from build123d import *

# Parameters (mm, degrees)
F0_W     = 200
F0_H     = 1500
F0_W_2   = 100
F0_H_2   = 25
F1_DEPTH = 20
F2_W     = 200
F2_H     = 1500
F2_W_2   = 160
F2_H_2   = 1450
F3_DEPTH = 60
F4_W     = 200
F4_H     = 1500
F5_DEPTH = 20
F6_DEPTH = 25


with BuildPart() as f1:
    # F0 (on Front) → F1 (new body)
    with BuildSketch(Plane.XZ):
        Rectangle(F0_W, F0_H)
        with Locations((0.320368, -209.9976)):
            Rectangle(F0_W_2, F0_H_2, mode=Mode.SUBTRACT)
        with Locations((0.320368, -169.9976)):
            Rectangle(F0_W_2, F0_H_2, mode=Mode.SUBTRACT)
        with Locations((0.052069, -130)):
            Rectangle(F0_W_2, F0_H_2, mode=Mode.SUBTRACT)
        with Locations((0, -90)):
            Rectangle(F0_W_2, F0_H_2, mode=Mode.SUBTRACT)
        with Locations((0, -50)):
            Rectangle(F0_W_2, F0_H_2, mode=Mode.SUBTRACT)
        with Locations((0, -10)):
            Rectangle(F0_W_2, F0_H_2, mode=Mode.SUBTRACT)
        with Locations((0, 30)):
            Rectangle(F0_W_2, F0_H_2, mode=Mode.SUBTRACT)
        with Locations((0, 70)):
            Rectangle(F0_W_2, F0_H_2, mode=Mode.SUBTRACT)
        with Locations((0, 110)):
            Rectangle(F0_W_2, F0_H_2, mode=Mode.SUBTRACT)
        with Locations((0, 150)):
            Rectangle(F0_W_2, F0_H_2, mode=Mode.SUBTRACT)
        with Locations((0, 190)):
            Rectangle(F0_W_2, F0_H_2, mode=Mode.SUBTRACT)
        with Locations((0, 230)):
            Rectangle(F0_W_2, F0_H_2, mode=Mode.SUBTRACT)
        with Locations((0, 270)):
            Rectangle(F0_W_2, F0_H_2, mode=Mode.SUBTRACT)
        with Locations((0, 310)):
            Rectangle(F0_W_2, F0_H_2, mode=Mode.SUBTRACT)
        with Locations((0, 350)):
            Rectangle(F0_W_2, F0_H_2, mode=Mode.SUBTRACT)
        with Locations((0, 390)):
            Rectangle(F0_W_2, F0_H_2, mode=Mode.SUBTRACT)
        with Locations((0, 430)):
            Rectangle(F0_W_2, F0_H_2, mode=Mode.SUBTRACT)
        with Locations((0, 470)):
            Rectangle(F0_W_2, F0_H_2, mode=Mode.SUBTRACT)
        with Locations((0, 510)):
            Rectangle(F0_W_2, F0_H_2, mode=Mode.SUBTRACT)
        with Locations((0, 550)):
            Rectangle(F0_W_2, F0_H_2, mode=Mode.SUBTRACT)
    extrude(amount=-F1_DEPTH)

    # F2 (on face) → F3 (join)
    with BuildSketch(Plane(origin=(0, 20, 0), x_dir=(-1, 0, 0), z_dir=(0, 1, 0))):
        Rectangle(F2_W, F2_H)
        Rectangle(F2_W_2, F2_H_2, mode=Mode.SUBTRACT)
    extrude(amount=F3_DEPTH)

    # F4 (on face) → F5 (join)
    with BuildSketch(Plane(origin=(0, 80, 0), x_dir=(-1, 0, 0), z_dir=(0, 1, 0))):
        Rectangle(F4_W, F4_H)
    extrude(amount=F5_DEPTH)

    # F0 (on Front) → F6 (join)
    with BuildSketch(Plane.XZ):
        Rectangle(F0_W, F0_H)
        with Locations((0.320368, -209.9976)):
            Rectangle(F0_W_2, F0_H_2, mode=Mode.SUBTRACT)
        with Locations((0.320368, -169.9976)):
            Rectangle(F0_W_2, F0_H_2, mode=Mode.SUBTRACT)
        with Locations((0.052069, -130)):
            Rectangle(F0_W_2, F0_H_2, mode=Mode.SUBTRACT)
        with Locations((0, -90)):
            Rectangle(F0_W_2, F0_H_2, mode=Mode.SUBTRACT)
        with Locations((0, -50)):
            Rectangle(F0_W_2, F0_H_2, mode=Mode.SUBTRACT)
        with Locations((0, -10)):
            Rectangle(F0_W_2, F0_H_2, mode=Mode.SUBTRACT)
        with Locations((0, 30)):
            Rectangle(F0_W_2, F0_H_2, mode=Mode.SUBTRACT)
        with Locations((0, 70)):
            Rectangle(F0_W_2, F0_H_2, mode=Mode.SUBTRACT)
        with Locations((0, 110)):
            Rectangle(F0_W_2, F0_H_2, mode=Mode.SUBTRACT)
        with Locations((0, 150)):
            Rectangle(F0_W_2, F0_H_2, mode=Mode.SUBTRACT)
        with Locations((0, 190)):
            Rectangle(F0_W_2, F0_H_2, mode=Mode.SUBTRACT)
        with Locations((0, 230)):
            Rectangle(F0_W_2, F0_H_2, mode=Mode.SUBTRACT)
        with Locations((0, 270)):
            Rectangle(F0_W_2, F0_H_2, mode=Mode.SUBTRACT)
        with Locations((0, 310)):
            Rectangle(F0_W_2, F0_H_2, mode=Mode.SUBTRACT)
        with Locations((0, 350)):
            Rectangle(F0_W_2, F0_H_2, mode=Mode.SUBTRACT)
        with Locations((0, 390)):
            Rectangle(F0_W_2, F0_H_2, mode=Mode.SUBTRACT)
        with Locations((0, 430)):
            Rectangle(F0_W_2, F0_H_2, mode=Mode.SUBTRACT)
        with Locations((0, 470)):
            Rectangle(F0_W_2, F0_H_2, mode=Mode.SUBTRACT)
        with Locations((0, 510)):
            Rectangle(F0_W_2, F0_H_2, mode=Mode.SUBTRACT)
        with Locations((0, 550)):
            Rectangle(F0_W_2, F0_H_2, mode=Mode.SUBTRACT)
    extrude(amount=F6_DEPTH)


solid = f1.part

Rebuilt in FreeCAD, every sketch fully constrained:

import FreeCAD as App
import Part
import Sketcher
from FreeCAD import Vector


def add_polygon(sketch, points):
    """Adds a closed chain of lines whose ends are joined by coincident constraints."""
    first, n = sketch.GeometryCount, len(points)
    for a, b in zip(points, points[1:] + points[:1]):
        sketch.addGeometry(Part.LineSegment(App.Vector(*a, 0), App.Vector(*b, 0)), False)
    for i in range(n):
        sketch.addConstraint(Sketcher.Constraint("Coincident", first + i, 2, first + (i + 1) % n, 1))

doc = App.newDocument("Part")
body = doc.addObject("PartDesign::Body", "Body")

# Sketch on XZ plane
sketch1 = doc.addObject("Sketcher::SketchObject", "Sketch")
body.addObject(sketch1)
sketch1.AttachmentSupport = (doc.XZ_Plane, [""])
sketch1.MapMode = "FlatFace"
add_polygon(sketch1, [(-100, 750), (-100, -750), (100, -750), (100, 750)])  # lines 0-3
add_polygon(sketch1, [(50, -142), (-50, -142), (-50, -118), (50, -118)])  # lines 4-7
add_polygon(sketch1, [(50, -102), (-50, -102), (-50, -78), (50, -78)])  # lines 8-11
add_polygon(sketch1, [(50, -62), (-50, -62), (-50, -38), (50, -38)])  # lines 12-15
add_polygon(sketch1, [(50, -22), (-50, -22), (-50, 2), (50, 2)])  # lines 16-19
add_polygon(sketch1, [(50, 18), (-50, 18), (-50, 42), (50, 42)])  # lines 20-23
add_polygon(sketch1, [(50, 58), (-50, 58), (-50, 82), (50, 82)])  # lines 24-27
add_polygon(sketch1, [(50, 98), (-50, 98), (-50, 122), (50, 122)])  # lines 28-31
add_polygon(sketch1, [(50, 138), (-50, 138), (-50, 162), (50, 162)])  # lines 32-35
add_polygon(sketch1, [(50, -222), (-50, -222), (-50, -197), (50, -197)])  # lines 36-39
add_polygon(sketch1, [(50, -182), (-50, -182), (-50, -157), (50, -157)])  # lines 40-43
add_polygon(sketch1, [(50, 178), (-50, 178), (-50, 202), (50, 202)])  # lines 44-47
add_polygon(sketch1, [(50, 218), (-50, 218), (-50, 242), (50, 242)])  # lines 48-51
add_polygon(sketch1, [(50, 258), (-50, 258), (-50, 282), (50, 282)])  # lines 52-55
add_polygon(sketch1, [(50, 298), (-50, 298), (-50, 322), (50, 322)])  # lines 56-59
add_polygon(sketch1, [(50, 338), (-50, 338), (-50, 362), (50, 362)])  # lines 60-63
add_polygon(sketch1, [(50, 378), (-50, 378), (-50, 402), (50, 402)])  # lines 64-67
add_polygon(sketch1, [(50, 418), (-50, 418), (-50, 442), (50, 442)])  # lines 68-71
add_polygon(sketch1, [(50, 458), (-50, 458), (-50, 482), (50, 482)])  # lines 72-75
add_polygon(sketch1, [(50, 498), (-50, 498), (-50, 522), (50, 522)])  # lines 76-79
add_polygon(sketch1, [(50, 538), (-50, 538), (-50, 562), (50, 562)])  # lines 80-83
sketch1.addConstraint([
    Sketcher.Constraint("Vertical", 0),
    Sketcher.Constraint("Horizontal", 1),
    Sketcher.Constraint("Vertical", 2),
    Sketcher.Constraint("Horizontal", 3),
    Sketcher.Constraint("Horizontal", 4),
    Sketcher.Constraint("Vertical", 5),
    Sketcher.Constraint("Horizontal", 6),
    Sketcher.Constraint("Vertical", 7),
    Sketcher.Constraint("Horizontal", 8),
    Sketcher.Constraint("Vertical", 9),
    Sketcher.Constraint("Horizontal", 10),
    Sketcher.Constraint("Vertical", 11),
    Sketcher.Constraint("Horizontal", 12),
    Sketcher.Constraint("Vertical", 13),
    Sketcher.Constraint("Horizontal", 14),
    Sketcher.Constraint("Vertical", 15),
    Sketcher.Constraint("Horizontal", 16),
    Sketcher.Constraint("Vertical", 17),
    Sketcher.Constraint("Horizontal", 18),
    Sketcher.Constraint("Vertical", 19),
    Sketcher.Constraint("Horizontal", 20),
    Sketcher.Constraint("Vertical", 21),
    Sketcher.Constraint("Horizontal", 22),
    Sketcher.Constraint("Vertical", 23),
    Sketcher.Constraint("Horizontal", 24),
    Sketcher.Constraint("Vertical", 25),
    Sketcher.Constraint("Horizontal", 26),
    Sketcher.Constraint("Vertical", 27),
    Sketcher.Constraint("Horizontal", 28),
    Sketcher.Constraint("Vertical", 29),
    Sketcher.Constraint("Horizontal", 30),
    Sketcher.Constraint("Vertical", 31),
    Sketcher.Constraint("Horizontal", 32),
    Sketcher.Constraint("Vertical", 33),
    Sketcher.Constraint("Horizontal", 34),
    Sketcher.Constraint("Vertical", 35),
    Sketcher.Constraint("Horizontal", 36),
    Sketcher.Constraint("Vertical", 37),
    Sketcher.Constraint("Horizontal", 38),
    Sketcher.Constraint("Vertical", 39),
    Sketcher.Constraint("Horizontal", 40),
    Sketcher.Constraint("Vertical", 41),
    Sketcher.Constraint("Horizontal", 42),
    Sketcher.Constraint("Vertical", 43),
    Sketcher.Constraint("Horizontal", 44),
    Sketcher.Constraint("Vertical", 45),
    Sketcher.Constraint("Horizontal", 46),
    Sketcher.Constraint("Vertical", 47),
    Sketcher.Constraint("Horizontal", 48),
    Sketcher.Constraint("Vertical", 49),
    Sketcher.Constraint("Horizontal", 50),
    Sketcher.Constraint("Vertical", 51),
    Sketcher.Constraint("Horizontal", 52),
    Sketcher.Constraint("Vertical", 53),
    Sketcher.Constraint("Horizontal", 54),
    Sketcher.Constraint("Vertical", 55),
    Sketcher.Constraint("Horizontal", 56),
    Sketcher.Constraint("Vertical", 57),
    Sketcher.Constraint("Horizontal", 58),
    Sketcher.Constraint("Vertical", 59),
    Sketcher.Constraint("Horizontal", 60),
    Sketcher.Constraint("Vertical", 61),
    Sketcher.Constraint("Horizontal", 62),
    Sketcher.Constraint("Vertical", 63),
    Sketcher.Constraint("Horizontal", 64),
    Sketcher.Constraint("Vertical", 65),
    Sketcher.Constraint("Horizontal", 66),
    Sketcher.Constraint("Vertical", 67),
    Sketcher.Constraint("Horizontal", 68),
    Sketcher.Constraint("Vertical", 69),
    Sketcher.Constraint("Horizontal", 70),
    Sketcher.Constraint("Vertical", 71),
    Sketcher.Constraint("Horizontal", 72),
    Sketcher.Constraint("Vertical", 73),
    Sketcher.Constraint("Horizontal", 74),
    Sketcher.Constraint("Vertical", 75),
    Sketcher.Constraint("Horizontal", 76),
    Sketcher.Constraint("Vertical", 77),
    Sketcher.Constraint("Horizontal", 78),
    Sketcher.Constraint("Vertical", 79),
    Sketcher.Constraint("Horizontal", 80),
    Sketcher.Constraint("Vertical", 81),
    Sketcher.Constraint("Horizontal", 82),
    Sketcher.Constraint("Vertical", 83),
    Sketcher.Constraint("Symmetric", 0, 2, 2, 2, -1, 1),
    Sketcher.Constraint("Vertical", 9, 2, 12, 2),
    Sketcher.Constraint("Vertical", 11, 2, 14, 2),
    Sketcher.Constraint("Vertical", 13, 2, 16, 2),
    Sketcher.Constraint("Vertical", 15, 2, 18, 2),
    Sketcher.Constraint("Vertical", 17, 2, 20, 2),
    Sketcher.Constraint("Vertical", 19, 2, 22, 2),
    Sketcher.Constraint("Vertical", 21, 2, 24, 2),
    Sketcher.Constraint("Vertical", 23, 2, 26, 2),
    Sketcher.Constraint("Vertical", 25, 2, 28, 2),
    Sketcher.Constraint("Vertical", 27, 2, 30, 2),
    Sketcher.Constraint("Vertical", 29, 2, 32, 2),
    Sketcher.Constraint("Vertical", 31, 2, 34, 2),
    Sketcher.Constraint("Vertical", 37, 2, 40, 2),
    Sketcher.Constraint("Vertical", 39, 2, 42, 2),
    Sketcher.Constraint("Vertical", 33, 2, 44, 2),
    Sketcher.Constraint("Vertical", 35, 2, 46, 2),
    Sketcher.Constraint("Vertical", 45, 2, 48, 2),
    Sketcher.Constraint("Vertical", 47, 2, 50, 2),
    Sketcher.Constraint("Vertical", 49, 2, 52, 2),
    Sketcher.Constraint("Vertical", 51, 2, 54, 2),
    Sketcher.Constraint("Vertical", 53, 2, 56, 2),
    Sketcher.Constraint("Vertical", 55, 2, 58, 2),
    Sketcher.Constraint("Vertical", 57, 2, 60, 2),
    Sketcher.Constraint("Vertical", 59, 2, 62, 2),
    Sketcher.Constraint("Vertical", 61, 2, 64, 2),
    Sketcher.Constraint("Vertical", 63, 2, 66, 2),
    Sketcher.Constraint("Vertical", 65, 2, 68, 2),
    Sketcher.Constraint("Vertical", 67, 2, 70, 2),
    Sketcher.Constraint("Vertical", 69, 2, 72, 2),
    Sketcher.Constraint("Vertical", 71, 2, 74, 2),
    Sketcher.Constraint("Vertical", 73, 2, 76, 2),
    Sketcher.Constraint("Vertical", 75, 2, 78, 2),
    Sketcher.Constraint("Vertical", 77, 2, 80, 2),
    Sketcher.Constraint("Vertical", 79, 2, 82, 2),
    Sketcher.Constraint("Equal", 6, 8),
    Sketcher.Constraint("Equal", 34, 36),
    Sketcher.Constraint("Equal", 7, 9),
    Sketcher.Constraint("Equal", 11, 13),
    Sketcher.Constraint("Equal", 15, 17),
    Sketcher.Constraint("Equal", 19, 21),
    Sketcher.Constraint("Equal", 23, 25),
    Sketcher.Constraint("Equal", 27, 29),
    Sketcher.Constraint("Equal", 31, 33),
    Sketcher.Constraint("Equal", 35, 37),
    Sketcher.Constraint("Equal", 39, 41),
    Sketcher.Constraint("Equal", 43, 45),
    Sketcher.Constraint("Equal", 47, 49),
    Sketcher.Constraint("Equal", 51, 53),
    Sketcher.Constraint("Equal", 55, 57),
    Sketcher.Constraint("Equal", 59, 61),
    Sketcher.Constraint("Equal", 63, 65),
    Sketcher.Constraint("Equal", 67, 69),
    Sketcher.Constraint("Equal", 71, 73),
    Sketcher.Constraint("Equal", 75, 77),
    Sketcher.Constraint("Equal", 79, 81),
    Sketcher.Constraint("DistanceX", 1, 1, 1, 2, 200.0),
    Sketcher.Constraint("DistanceX", 4, 2, 4, 1, 100.0),
    Sketcher.Constraint("DistanceY", 0, 2, 0, 1, 1500.0),
    Sketcher.Constraint("DistanceY", 5, 1, 5, 2, 25.0),
    Sketcher.Constraint("DistanceX", 8, 2, -1, 1, 50.0),
    Sketcher.Constraint("DistanceY", 4, 2, -1, 1, 142.5),
    Sketcher.Constraint("DistanceY", 8, 2, -1, 1, 102.5),
    Sketcher.Constraint("DistanceY", 12, 2, -1, 1, 62.5),
    Sketcher.Constraint("DistanceY", 16, 2, -1, 1, 22.5),
    Sketcher.Constraint("DistanceY", -1, 1, 20, 2, 17.5),
    Sketcher.Constraint("DistanceY", -1, 1, 24, 2, 57.5),
    Sketcher.Constraint("DistanceY", -1, 1, 28, 2, 97.5),
    Sketcher.Constraint("DistanceY", -1, 1, 32, 2, 137.5),
    Sketcher.Constraint("DistanceY", -1, 1, 44, 2, 177.5),
    Sketcher.Constraint("DistanceY", -1, 1, 48, 2, 217.5),
    Sketcher.Constraint("DistanceY", -1, 1, 52, 2, 257.5),
    Sketcher.Constraint("DistanceY", -1, 1, 56, 2, 297.5),
    Sketcher.Constraint("DistanceY", -1, 1, 60, 2, 337.5),
    Sketcher.Constraint("DistanceY", -1, 1, 64, 2, 377.5),
    Sketcher.Constraint("DistanceY", -1, 1, 68, 2, 417.5),
    Sketcher.Constraint("DistanceY", -1, 1, 72, 2, 457.5),
    Sketcher.Constraint("DistanceY", -1, 1, 76, 2, 497.5),
    Sketcher.Constraint("DistanceY", -1, 1, 80, 2, 537.5),
    Sketcher.Constraint("DistanceY", 36, 2, -1, 1, 222.4976),
    Sketcher.Constraint("DistanceY", 40, 2, -1, 1, 182.4976),
    Sketcher.Constraint("DistanceX", 4, 2, -1, 1, 49.947931),
    Sketcher.Constraint("DistanceX", 36, 2, -1, 1, 49.679632),
])
pad1 = doc.addObject("PartDesign::Pad", "Pad")
body.addObject(pad1)
pad1.Profile = sketch1
pad1.Length = 20
pad1.Reversed = True

# Sketch on XZ plane
sketch2 = doc.addObject("Sketcher::SketchObject", "Sketch001")
body.addObject(sketch2)
sketch2.AttachmentSupport = (doc.XZ_Plane, [""])
sketch2.MapMode = "FlatFace"
sketch2.AttachmentOffset = App.Placement(Vector(0, 0, -20), App.Rotation())
add_polygon(sketch2, [(100, 750), (100, -750), (-100, -750), (-100, 750)])  # lines 0-3
add_polygon(sketch2, [(-80, -725), (80, -725), (80, 725), (-80, 725)])  # lines 4-7
sketch2.addConstraint([
    Sketcher.Constraint("Vertical", 0),
    Sketcher.Constraint("Horizontal", 1),
    Sketcher.Constraint("Vertical", 2),
    Sketcher.Constraint("Horizontal", 3),
    Sketcher.Constraint("Horizontal", 4),
    Sketcher.Constraint("Vertical", 5),
    Sketcher.Constraint("Horizontal", 6),
    Sketcher.Constraint("Vertical", 7),
    Sketcher.Constraint("Symmetric", 0, 2, 2, 2, -1, 1),
    Sketcher.Constraint("Symmetric", 4, 2, 6, 2, -1, 1),
    Sketcher.Constraint("DistanceX", 1, 2, 1, 1, 200.0),
    Sketcher.Constraint("DistanceX", 4, 1, 4, 2, 160.0),
    Sketcher.Constraint("DistanceY", 0, 2, 0, 1, 1500.0),
    Sketcher.Constraint("DistanceY", 5, 1, 5, 2, 1450.0),
])
pad2 = doc.addObject("PartDesign::Pad", "Pad001")
body.addObject(pad2)
pad2.Profile = sketch2
pad2.Length = 60
pad2.Reversed = True

# Sketch on XZ plane
sketch3 = doc.addObject("Sketcher::SketchObject", "Sketch002")
body.addObject(sketch3)
sketch3.AttachmentSupport = (doc.XZ_Plane, [""])
sketch3.MapMode = "FlatFace"
sketch3.AttachmentOffset = App.Placement(Vector(0, 0, -80), App.Rotation())
add_polygon(sketch3, [(100, 750), (100, -750), (-100, -750), (-100, 750)])  # lines 0-3
sketch3.addConstraint([
    Sketcher.Constraint("Vertical", 0),
    Sketcher.Constraint("Horizontal", 1),
    Sketcher.Constraint("Vertical", 2),
    Sketcher.Constraint("Horizontal", 3),
    Sketcher.Constraint("Symmetric", 0, 2, 2, 2, -1, 1),
    Sketcher.Constraint("DistanceX", 1, 2, 1, 1, 200.0),
    Sketcher.Constraint("DistanceY", 0, 2, 0, 1, 1500.0),
])
pad3 = doc.addObject("PartDesign::Pad", "Pad002")
body.addObject(pad3)
pad3.Profile = sketch3
pad3.Length = 20
pad3.Reversed = True

# Sketch on XZ plane
sketch4 = doc.addObject("Sketcher::SketchObject", "Sketch003")
body.addObject(sketch4)
sketch4.AttachmentSupport = (doc.XZ_Plane, [""])
sketch4.MapMode = "FlatFace"
add_polygon(sketch4, [(-100, 750), (-100, -750), (100, -750), (100, 750)])  # lines 0-3
add_polygon(sketch4, [(50, -142), (-50, -142), (-50, -118), (50, -118)])  # lines 4-7
add_polygon(sketch4, [(50, -102), (-50, -102), (-50, -78), (50, -78)])  # lines 8-11
add_polygon(sketch4, [(50, -62), (-50, -62), (-50, -38), (50, -38)])  # lines 12-15
add_polygon(sketch4, [(50, -22), (-50, -22), (-50, 2), (50, 2)])  # lines 16-19
add_polygon(sketch4, [(50, 18), (-50, 18), (-50, 42), (50, 42)])  # lines 20-23
add_polygon(sketch4, [(50, 58), (-50, 58), (-50, 82), (50, 82)])  # lines 24-27
add_polygon(sketch4, [(50, 98), (-50, 98), (-50, 122), (50, 122)])  # lines 28-31
add_polygon(sketch4, [(50, 138), (-50, 138), (-50, 162), (50, 162)])  # lines 32-35
add_polygon(sketch4, [(50, -222), (-50, -222), (-50, -197), (50, -197)])  # lines 36-39
add_polygon(sketch4, [(50, -182), (-50, -182), (-50, -157), (50, -157)])  # lines 40-43
add_polygon(sketch4, [(50, 178), (-50, 178), (-50, 202), (50, 202)])  # lines 44-47
add_polygon(sketch4, [(50, 218), (-50, 218), (-50, 242), (50, 242)])  # lines 48-51
add_polygon(sketch4, [(50, 258), (-50, 258), (-50, 282), (50, 282)])  # lines 52-55
add_polygon(sketch4, [(50, 298), (-50, 298), (-50, 322), (50, 322)])  # lines 56-59
add_polygon(sketch4, [(50, 338), (-50, 338), (-50, 362), (50, 362)])  # lines 60-63
add_polygon(sketch4, [(50, 378), (-50, 378), (-50, 402), (50, 402)])  # lines 64-67
add_polygon(sketch4, [(50, 418), (-50, 418), (-50, 442), (50, 442)])  # lines 68-71
add_polygon(sketch4, [(50, 458), (-50, 458), (-50, 482), (50, 482)])  # lines 72-75
add_polygon(sketch4, [(50, 498), (-50, 498), (-50, 522), (50, 522)])  # lines 76-79
add_polygon(sketch4, [(50, 538), (-50, 538), (-50, 562), (50, 562)])  # lines 80-83
sketch4.addConstraint([
    Sketcher.Constraint("Vertical", 0),
    Sketcher.Constraint("Horizontal", 1),
    Sketcher.Constraint("Vertical", 2),
    Sketcher.Constraint("Horizontal", 3),
    Sketcher.Constraint("Horizontal", 4),
    Sketcher.Constraint("Vertical", 5),
    Sketcher.Constraint("Horizontal", 6),
    Sketcher.Constraint("Vertical", 7),
    Sketcher.Constraint("Horizontal", 8),
    Sketcher.Constraint("Vertical", 9),
    Sketcher.Constraint("Horizontal", 10),
    Sketcher.Constraint("Vertical", 11),
    Sketcher.Constraint("Horizontal", 12),
    Sketcher.Constraint("Vertical", 13),
    Sketcher.Constraint("Horizontal", 14),
    Sketcher.Constraint("Vertical", 15),
    Sketcher.Constraint("Horizontal", 16),
    Sketcher.Constraint("Vertical", 17),
    Sketcher.Constraint("Horizontal", 18),
    Sketcher.Constraint("Vertical", 19),
    Sketcher.Constraint("Horizontal", 20),
    Sketcher.Constraint("Vertical", 21),
    Sketcher.Constraint("Horizontal", 22),
    Sketcher.Constraint("Vertical", 23),
    Sketcher.Constraint("Horizontal", 24),
    Sketcher.Constraint("Vertical", 25),
    Sketcher.Constraint("Horizontal", 26),
    Sketcher.Constraint("Vertical", 27),
    Sketcher.Constraint("Horizontal", 28),
    Sketcher.Constraint("Vertical", 29),
    Sketcher.Constraint("Horizontal", 30),
    Sketcher.Constraint("Vertical", 31),
    Sketcher.Constraint("Horizontal", 32),
    Sketcher.Constraint("Vertical", 33),
    Sketcher.Constraint("Horizontal", 34),
    Sketcher.Constraint("Vertical", 35),
    Sketcher.Constraint("Horizontal", 36),
    Sketcher.Constraint("Vertical", 37),
    Sketcher.Constraint("Horizontal", 38),
    Sketcher.Constraint("Vertical", 39),
    Sketcher.Constraint("Horizontal", 40),
    Sketcher.Constraint("Vertical", 41),
    Sketcher.Constraint("Horizontal", 42),
    Sketcher.Constraint("Vertical", 43),
    Sketcher.Constraint("Horizontal", 44),
    Sketcher.Constraint("Vertical", 45),
    Sketcher.Constraint("Horizontal", 46),
    Sketcher.Constraint("Vertical", 47),
    Sketcher.Constraint("Horizontal", 48),
    Sketcher.Constraint("Vertical", 49),
    Sketcher.Constraint("Horizontal", 50),
    Sketcher.Constraint("Vertical", 51),
    Sketcher.Constraint("Horizontal", 52),
    Sketcher.Constraint("Vertical", 53),
    Sketcher.Constraint("Horizontal", 54),
    Sketcher.Constraint("Vertical", 55),
    Sketcher.Constraint("Horizontal", 56),
    Sketcher.Constraint("Vertical", 57),
    Sketcher.Constraint("Horizontal", 58),
    Sketcher.Constraint("Vertical", 59),
    Sketcher.Constraint("Horizontal", 60),
    Sketcher.Constraint("Vertical", 61),
    Sketcher.Constraint("Horizontal", 62),
    Sketcher.Constraint("Vertical", 63),
    Sketcher.Constraint("Horizontal", 64),
    Sketcher.Constraint("Vertical", 65),
    Sketcher.Constraint("Horizontal", 66),
    Sketcher.Constraint("Vertical", 67),
    Sketcher.Constraint("Horizontal", 68),
    Sketcher.Constraint("Vertical", 69),
    Sketcher.Constraint("Horizontal", 70),
    Sketcher.Constraint("Vertical", 71),
    Sketcher.Constraint("Horizontal", 72),
    Sketcher.Constraint("Vertical", 73),
    Sketcher.Constraint("Horizontal", 74),
    Sketcher.Constraint("Vertical", 75),
    Sketcher.Constraint("Horizontal", 76),
    Sketcher.Constraint("Vertical", 77),
    Sketcher.Constraint("Horizontal", 78),
    Sketcher.Constraint("Vertical", 79),
    Sketcher.Constraint("Horizontal", 80),
    Sketcher.Constraint("Vertical", 81),
    Sketcher.Constraint("Horizontal", 82),
    Sketcher.Constraint("Vertical", 83),
    Sketcher.Constraint("Symmetric", 0, 2, 2, 2, -1, 1),
    Sketcher.Constraint("Vertical", 9, 2, 12, 2),
    Sketcher.Constraint("Vertical", 11, 2, 14, 2),
    Sketcher.Constraint("Vertical", 13, 2, 16, 2),
    Sketcher.Constraint("Vertical", 15, 2, 18, 2),
    Sketcher.Constraint("Vertical", 17, 2, 20, 2),
    Sketcher.Constraint("Vertical", 19, 2, 22, 2),
    Sketcher.Constraint("Vertical", 21, 2, 24, 2),
    Sketcher.Constraint("Vertical", 23, 2, 26, 2),
    Sketcher.Constraint("Vertical", 25, 2, 28, 2),
    Sketcher.Constraint("Vertical", 27, 2, 30, 2),
    Sketcher.Constraint("Vertical", 29, 2, 32, 2),
    Sketcher.Constraint("Vertical", 31, 2, 34, 2),
    Sketcher.Constraint("Vertical", 37, 2, 40, 2),
    Sketcher.Constraint("Vertical", 39, 2, 42, 2),
    Sketcher.Constraint("Vertical", 33, 2, 44, 2),
    Sketcher.Constraint("Vertical", 35, 2, 46, 2),
    Sketcher.Constraint("Vertical", 45, 2, 48, 2),
    Sketcher.Constraint("Vertical", 47, 2, 50, 2),
    Sketcher.Constraint("Vertical", 49, 2, 52, 2),
    Sketcher.Constraint("Vertical", 51, 2, 54, 2),
    Sketcher.Constraint("Vertical", 53, 2, 56, 2),
    Sketcher.Constraint("Vertical", 55, 2, 58, 2),
    Sketcher.Constraint("Vertical", 57, 2, 60, 2),
    Sketcher.Constraint("Vertical", 59, 2, 62, 2),
    Sketcher.Constraint("Vertical", 61, 2, 64, 2),
    Sketcher.Constraint("Vertical", 63, 2, 66, 2),
    Sketcher.Constraint("Vertical", 65, 2, 68, 2),
    Sketcher.Constraint("Vertical", 67, 2, 70, 2),
    Sketcher.Constraint("Vertical", 69, 2, 72, 2),
    Sketcher.Constraint("Vertical", 71, 2, 74, 2),
    Sketcher.Constraint("Vertical", 73, 2, 76, 2),
    Sketcher.Constraint("Vertical", 75, 2, 78, 2),
    Sketcher.Constraint("Vertical", 77, 2, 80, 2),
    Sketcher.Constraint("Vertical", 79, 2, 82, 2),
    Sketcher.Constraint("Equal", 6, 8),
    Sketcher.Constraint("Equal", 34, 36),
    Sketcher.Constraint("Equal", 7, 9),
    Sketcher.Constraint("Equal", 11, 13),
    Sketcher.Constraint("Equal", 15, 17),
    Sketcher.Constraint("Equal", 19, 21),
    Sketcher.Constraint("Equal", 23, 25),
    Sketcher.Constraint("Equal", 27, 29),
    Sketcher.Constraint("Equal", 31, 33),
    Sketcher.Constraint("Equal", 35, 37),
    Sketcher.Constraint("Equal", 39, 41),
    Sketcher.Constraint("Equal", 43, 45),
    Sketcher.Constraint("Equal", 47, 49),
    Sketcher.Constraint("Equal", 51, 53),
    Sketcher.Constraint("Equal", 55, 57),
    Sketcher.Constraint("Equal", 59, 61),
    Sketcher.Constraint("Equal", 63, 65),
    Sketcher.Constraint("Equal", 67, 69),
    Sketcher.Constraint("Equal", 71, 73),
    Sketcher.Constraint("Equal", 75, 77),
    Sketcher.Constraint("Equal", 79, 81),
    Sketcher.Constraint("DistanceX", 1, 1, 1, 2, 200.0),
    Sketcher.Constraint("DistanceX", 4, 2, 4, 1, 100.0),
    Sketcher.Constraint("DistanceY", 0, 2, 0, 1, 1500.0),
    Sketcher.Constraint("DistanceY", 5, 1, 5, 2, 25.0),
    Sketcher.Constraint("DistanceX", 8, 2, -1, 1, 50.0),
    Sketcher.Constraint("DistanceY", 4, 2, -1, 1, 142.5),
    Sketcher.Constraint("DistanceY", 8, 2, -1, 1, 102.5),
    Sketcher.Constraint("DistanceY", 12, 2, -1, 1, 62.5),
    Sketcher.Constraint("DistanceY", 16, 2, -1, 1, 22.5),
    Sketcher.Constraint("DistanceY", -1, 1, 20, 2, 17.5),
    Sketcher.Constraint("DistanceY", -1, 1, 24, 2, 57.5),
    Sketcher.Constraint("DistanceY", -1, 1, 28, 2, 97.5),
    Sketcher.Constraint("DistanceY", -1, 1, 32, 2, 137.5),
    Sketcher.Constraint("DistanceY", -1, 1, 44, 2, 177.5),
    Sketcher.Constraint("DistanceY", -1, 1, 48, 2, 217.5),
    Sketcher.Constraint("DistanceY", -1, 1, 52, 2, 257.5),
    Sketcher.Constraint("DistanceY", -1, 1, 56, 2, 297.5),
    Sketcher.Constraint("DistanceY", -1, 1, 60, 2, 337.5),
    Sketcher.Constraint("DistanceY", -1, 1, 64, 2, 377.5),
    Sketcher.Constraint("DistanceY", -1, 1, 68, 2, 417.5),
    Sketcher.Constraint("DistanceY", -1, 1, 72, 2, 457.5),
    Sketcher.Constraint("DistanceY", -1, 1, 76, 2, 497.5),
    Sketcher.Constraint("DistanceY", -1, 1, 80, 2, 537.5),
    Sketcher.Constraint("DistanceY", 36, 2, -1, 1, 222.4976),
    Sketcher.Constraint("DistanceY", 40, 2, -1, 1, 182.4976),
    Sketcher.Constraint("DistanceX", 4, 2, -1, 1, 49.947931),
    Sketcher.Constraint("DistanceX", 36, 2, -1, 1, 49.679632),
])
pad4 = doc.addObject("PartDesign::Pad", "Pad003")
body.addObject(pad4)
pad4.Profile = sketch4
pad4.Length = 25

doc.recompute()
